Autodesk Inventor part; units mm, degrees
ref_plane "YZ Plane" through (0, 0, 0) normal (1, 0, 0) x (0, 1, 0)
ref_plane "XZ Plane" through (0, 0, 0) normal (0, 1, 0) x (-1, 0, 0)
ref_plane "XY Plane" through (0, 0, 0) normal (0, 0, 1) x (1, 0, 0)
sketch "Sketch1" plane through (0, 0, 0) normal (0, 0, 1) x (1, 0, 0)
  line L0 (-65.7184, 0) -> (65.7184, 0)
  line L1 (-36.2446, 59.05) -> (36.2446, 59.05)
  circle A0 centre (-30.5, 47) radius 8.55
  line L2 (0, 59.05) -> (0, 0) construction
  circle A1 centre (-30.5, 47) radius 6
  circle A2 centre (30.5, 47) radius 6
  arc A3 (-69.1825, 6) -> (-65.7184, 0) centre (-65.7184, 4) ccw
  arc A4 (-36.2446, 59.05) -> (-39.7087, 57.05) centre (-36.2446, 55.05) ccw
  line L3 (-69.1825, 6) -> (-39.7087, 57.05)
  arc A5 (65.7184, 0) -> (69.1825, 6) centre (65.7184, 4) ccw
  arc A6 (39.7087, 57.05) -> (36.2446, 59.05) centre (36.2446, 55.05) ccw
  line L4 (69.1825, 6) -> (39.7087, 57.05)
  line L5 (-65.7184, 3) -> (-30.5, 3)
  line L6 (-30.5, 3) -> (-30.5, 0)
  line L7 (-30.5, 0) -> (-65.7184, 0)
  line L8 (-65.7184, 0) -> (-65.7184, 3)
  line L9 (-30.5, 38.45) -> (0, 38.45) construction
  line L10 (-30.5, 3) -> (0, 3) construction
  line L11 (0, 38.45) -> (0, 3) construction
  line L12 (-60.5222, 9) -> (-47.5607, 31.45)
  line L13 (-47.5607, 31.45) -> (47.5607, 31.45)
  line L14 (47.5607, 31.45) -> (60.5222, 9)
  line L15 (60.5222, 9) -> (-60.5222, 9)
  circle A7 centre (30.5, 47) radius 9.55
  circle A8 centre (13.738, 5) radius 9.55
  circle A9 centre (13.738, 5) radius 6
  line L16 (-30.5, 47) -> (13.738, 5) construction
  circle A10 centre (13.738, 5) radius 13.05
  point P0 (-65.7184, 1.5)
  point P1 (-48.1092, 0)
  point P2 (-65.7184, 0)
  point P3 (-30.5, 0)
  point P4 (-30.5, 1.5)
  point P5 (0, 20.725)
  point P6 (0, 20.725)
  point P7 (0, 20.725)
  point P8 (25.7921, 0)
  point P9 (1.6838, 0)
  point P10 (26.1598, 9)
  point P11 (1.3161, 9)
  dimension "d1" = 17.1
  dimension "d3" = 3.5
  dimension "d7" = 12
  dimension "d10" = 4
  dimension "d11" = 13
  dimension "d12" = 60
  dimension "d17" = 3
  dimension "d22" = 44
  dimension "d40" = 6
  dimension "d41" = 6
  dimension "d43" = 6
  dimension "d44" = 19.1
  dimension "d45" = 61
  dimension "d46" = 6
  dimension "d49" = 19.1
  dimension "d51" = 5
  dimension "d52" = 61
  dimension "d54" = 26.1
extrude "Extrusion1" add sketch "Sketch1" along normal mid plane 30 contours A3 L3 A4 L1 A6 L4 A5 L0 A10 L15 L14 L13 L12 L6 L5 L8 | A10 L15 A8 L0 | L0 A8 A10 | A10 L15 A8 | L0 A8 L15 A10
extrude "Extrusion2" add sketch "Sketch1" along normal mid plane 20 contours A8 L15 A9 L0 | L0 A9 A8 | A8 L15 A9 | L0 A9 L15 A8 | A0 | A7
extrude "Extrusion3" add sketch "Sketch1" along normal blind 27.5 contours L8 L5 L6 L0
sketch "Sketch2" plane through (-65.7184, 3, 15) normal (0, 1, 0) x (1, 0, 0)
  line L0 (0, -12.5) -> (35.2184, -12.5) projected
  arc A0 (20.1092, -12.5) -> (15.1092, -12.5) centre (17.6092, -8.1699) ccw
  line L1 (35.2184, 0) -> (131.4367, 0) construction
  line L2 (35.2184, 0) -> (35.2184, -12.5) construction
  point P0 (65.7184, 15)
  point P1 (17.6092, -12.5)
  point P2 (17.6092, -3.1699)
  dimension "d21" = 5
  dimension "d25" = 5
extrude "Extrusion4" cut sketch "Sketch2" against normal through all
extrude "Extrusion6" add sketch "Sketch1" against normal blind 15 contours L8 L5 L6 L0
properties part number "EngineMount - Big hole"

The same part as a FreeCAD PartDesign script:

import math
import FreeCAD as App
import Part
import Sketcher

V = App.Vector
Q = App.Units.Quantity


def add_polygon(sketch, points):
    """Adds a closed chain of lines whose ends are joined by coincident constraints."""
    first, n = sketch.GeometryCount, len(points)
    for a, b in zip(points, points[1:] + points[:1]):
        sketch.addGeometry(Part.LineSegment(App.Vector(*a, 0), App.Vector(*b, 0)), False)
    for i in range(n):
        sketch.addConstraint(Sketcher.Constraint("Coincident", first + i, 2, first + (i + 1) % n, 1))

doc = App.newDocument("Part")
body = doc.addObject("PartDesign::Body", "Body")

sketch1 = body.newObject("Sketcher::SketchObject", "Sketch")
sketch1.AttachmentSupport = (doc.getObject("XY_Plane"), [""])
sketch1.MapMode = "FlatFace"
sketch1.addGeometry([
    Part.ArcOfCircle(Part.Circle(V(-65.7, 4, 0), V(0, 0, 1), 4), math.radians(150), math.radians(270)),
    Part.LineSegment(V(-65.7, 0, 0), V(-65.7, 3, 0)),
    Part.LineSegment(V(-65.7, 3, 0), V(-30.5, 3, 0)),
    Part.LineSegment(V(-30.5, 3, 0), V(-30.5, 0, 0)),
    Part.LineSegment(V(-30.5, 0, 0), V(1.7, 0, 0)),
    Part.ArcOfCircle(Part.Circle(V(13.7, 5, 0), V(0, 0, 1), 13.1), math.radians(-157), math.radians(-23)),
    Part.LineSegment(V(25.8, 0, 0), V(65.7, 0, 0)),
    Part.ArcOfCircle(Part.Circle(V(65.7, 4, 0), V(0, 0, 1), 4), math.radians(-90), math.radians(30)),
    Part.LineSegment(V(69.2, 6, 0), V(39.7, 57, 0)),
    Part.ArcOfCircle(Part.Circle(V(36.2, 55, 0), V(0, 0, 1), 4), math.radians(30), math.radians(90)),
    Part.LineSegment(V(36.2, 59, 0), V(-36.2, 59, 0)),
    Part.ArcOfCircle(Part.Circle(V(-36.2, 55, 0), V(0, 0, 1), 4), math.radians(90), math.radians(150)),
    Part.LineSegment(V(-39.7, 57, 0), V(-69.2, 6, 0)),
    Part.LineSegment(V(60.5, 9, 0), V(26.2, 9, 0)),
    Part.ArcOfCircle(Part.Circle(V(13.7, 5, 0), V(0, 0, 1), 13.1), math.radians(18), math.radians(162)),
    Part.LineSegment(V(1.3, 9, 0), V(-60.5, 9, 0)),
    Part.LineSegment(V(-60.5, 9, 0), V(-47.6, 31.4, 0)),
    Part.LineSegment(V(-47.6, 31.4, 0), V(47.6, 31.4, 0)),
    Part.LineSegment(V(47.6, 31.4, 0), V(60.5, 9, 0)),
    Part.Circle(V(-30.5, 47, 0), V(0, 0, 1), 8.6),
    Part.Circle(V(30.5, 47, 0), V(0, 0, 1), 9.6),
    Part.Circle(V(13.7, 5, 0), V(0, 0, 1), 9.6),
], False)
sketch1.addConstraint([
    Sketcher.Constraint("Coincident", 0, 2, 1, 1),
    Sketcher.Constraint("Coincident", 1, 2, 2, 1),
    Sketcher.Constraint("Coincident", 2, 2, 3, 1),
    Sketcher.Constraint("Coincident", 3, 2, 4, 1),
    Sketcher.Constraint("Coincident", 4, 2, 5, 1),
    Sketcher.Constraint("Coincident", 5, 2, 6, 1),
    Sketcher.Constraint("Tangent", 6, 2, 7, 1),
    Sketcher.Constraint("Tangent", 7, 2, 8, 1),
    Sketcher.Constraint("Tangent", 8, 2, 9, 1),
    Sketcher.Constraint("Tangent", 9, 2, 10, 1),
    Sketcher.Constraint("Tangent", 10, 2, 11, 1),
    Sketcher.Constraint("Tangent", 11, 2, 12, 1),
    Sketcher.Constraint("Tangent", 12, 2, 0, 1),
    Sketcher.Constraint("Coincident", 13, 2, 14, 1),
    Sketcher.Constraint("Coincident", 14, 2, 15, 1),
    Sketcher.Constraint("Coincident", 15, 2, 16, 1),
    Sketcher.Constraint("Coincident", 16, 2, 17, 1),
    Sketcher.Constraint("Coincident", 17, 2, 18, 1),
    Sketcher.Constraint("Coincident", 18, 2, 13, 1),
    Sketcher.Constraint("Vertical", 1),
    Sketcher.Constraint("Horizontal", 2),
    Sketcher.Constraint("Vertical", 3),
    Sketcher.Constraint("Horizontal", 4),
    Sketcher.Constraint("Horizontal", 6),
    Sketcher.Constraint("Horizontal", 10),
    Sketcher.Constraint("Horizontal", 13),
    Sketcher.Constraint("Horizontal", 15),
    Sketcher.Constraint("Horizontal", 17),
    Sketcher.Constraint("Coincident", 14, 3, 5, 3),
    Sketcher.Constraint("Coincident", 21, 3, 5, 3),
    Sketcher.Constraint("Equal", 0, 7),
    Sketcher.Constraint("Equal", 7, 9),
    Sketcher.Constraint("Equal", 9, 11),
    Sketcher.Constraint("Equal", 5, 14),
    Sketcher.Constraint("Equal", 20, 21),
    Sketcher.Constraint("Symmetric", 0, 2, 6, 2, -1, 1),
    Sketcher.Constraint("Symmetric", 0, 3, 7, 3, -2),
    Sketcher.Constraint("Symmetric", 19, 3, 20, 3, -2),
    Sketcher.Constraint("Symmetric", 15, 2, 18, 2, -2),
    Sketcher.Constraint("PointOnObject", 3, 2, -1),
    Sketcher.Constraint("Parallel", 12, 16),
    Sketcher.Constraint("Parallel", 8, 18),
    Sketcher.Constraint("Horizontal", 8, 2, 11, 2),
    Sketcher.Constraint("Vertical", 19, 3, 2, 2),
    Sketcher.Constraint("Radius", 0, Q("4 mm")),
    Sketcher.Constraint("Diameter", 19, Q("17.1 mm")),
    Sketcher.Constraint("Diameter", 20, Q("19.1 mm")),
    Sketcher.Constraint("DistanceY", 1, 1, 1, 2, Q("3 mm")),
    Sketcher.Constraint("Angle", 16, Q("60 deg")),
    Sketcher.Constraint("Radius", 5, Q("13.05 mm")),
    Sketcher.Constraint("DistanceY", -1, 1, 5, 3, Q("5 mm")),
    Sketcher.Constraint("DistanceX", 19, 3, 20, 3, Q("61 mm")),
    Sketcher.Constraint("DistanceY", 1, 2, 19, 3, Q("44 mm")),
    Sketcher.Constraint("DistanceY", 5, 3, 13, 2, Q("4 mm")),
    Sketcher.Constraint("DistanceY", 16, 2, 11, 3, Q("23.6 mm")),
    Sketcher.Constraint("DistanceY", -1, 1, 9, 3, Q("55.05 mm")),
    Sketcher.Constraint("DistanceX", 2, 1, 2, 2, Q("35.2184 mm")),
    Sketcher.Constraint("DistanceX", 4, 1, 4, 2, Q("32.1839 mm")),
    Sketcher.Constraint("DistanceX", 13, 2, 13, 1, Q("34.3623 mm")),
])
pad1 = body.newObject("PartDesign::Pad", "Pad")
pad1.Profile = sketch1
pad1.Length = 30
pad1.Midplane = True

sketch2 = body.newObject("Sketcher::SketchObject", "Sketch001")
sketch2.AttachmentSupport = (doc.getObject("XY_Plane"), [""])
sketch2.MapMode = "FlatFace"
sketch2.addGeometry([
    Part.Circle(V(14, 5, 0), V(0, 0, 1), 10),
    Part.Circle(V(14, 5, 0), V(0, 0, 1), 6),
    Part.Circle(V(-30, 47, 0), V(0, 0, 1), 9),
    Part.Circle(V(-30, 47, 0), V(0, 0, 1), 6),
    Part.Circle(V(30, 47, 0), V(0, 0, 1), 10),
    Part.Circle(V(30, 47, 0), V(0, 0, 1), 6),
], False)
sketch2.addConstraint([
    Sketcher.Constraint("Coincident", 1, 3, 0, 3),
    Sketcher.Constraint("Coincident", 3, 3, 2, 3),
    Sketcher.Constraint("Coincident", 5, 3, 4, 3),
    Sketcher.Constraint("Equal", 1, 3),
    Sketcher.Constraint("Equal", 0, 4),
    Sketcher.Constraint("Equal", 3, 5),
    Sketcher.Constraint("Symmetric", 2, 3, 4, 3, -2),
    Sketcher.Constraint("Diameter", 1, Q("12 mm")),
    Sketcher.Constraint("Diameter", 0, Q("19.1 mm")),
    Sketcher.Constraint("Diameter", 2, Q("17.1 mm")),
    Sketcher.Constraint("DistanceY", -1, 1, 0, 3, Q("5 mm")),
    Sketcher.Constraint("DistanceX", 2, 3, 4, 3, Q("61 mm")),
    Sketcher.Constraint("DistanceY", -1, 1, 2, 3, Q("47 mm")),
    Sketcher.Constraint("DistanceX", -1, 1, 0, 3, Q("13.738 mm")),
])
pad2 = body.newObject("PartDesign::Pad", "Pad001")
pad2.Profile = sketch2
pad2.Length = 20
pad2.Midplane = True

sketch3 = body.newObject("Sketcher::SketchObject", "Sketch002")
sketch3.AttachmentSupport = (doc.getObject("XY_Plane"), [""])
sketch3.MapMode = "FlatFace"
add_polygon(sketch3, [(-65.7, 3), (-65.7, 0), (-30.5, 0), (-30.5, 3)])
sketch3.addConstraint([
    Sketcher.Constraint("Vertical", 0),
    Sketcher.Constraint("Horizontal", 1),
    Sketcher.Constraint("Vertical", 2),
    Sketcher.Constraint("Horizontal", 3),
    Sketcher.Constraint("PointOnObject", 0, 2, -1),
    Sketcher.Constraint("DistanceY", 0, 2, 0, 1, Q("3 mm")),
    Sketcher.Constraint("DistanceX", 1, 2, -1, 1, Q("30.5 mm")),
    Sketcher.Constraint("DistanceX", 1, 1, 1, 2, Q("35.2184 mm")),
])
pad3 = body.newObject("PartDesign::Pad", "Pad002")
pad3.Profile = sketch3
pad3.Length = 27.5

sketch4 = body.newObject("Sketcher::SketchObject", "Sketch003")
sketch4.AttachmentSupport = (doc.getObject("XZ_Plane"), [""])
sketch4.MapMode = "FlatFace"
sketch4.AttachmentOffset = App.Placement(V(0, 0, -3), App.Rotation())
sketch4.addGeometry([
    Part.ArcOfCircle(Part.Circle(V(-48.1, 23.2, 0), V(0, 0, 1), 5), math.radians(120), math.radians(420)),
    Part.LineSegment(V(-50.6, 27.5, 0), V(-45.6, 27.5, 0)),
], False)
sketch4.addConstraint([
    Sketcher.Constraint("Coincident", 0, 1, 1, 1),
    Sketcher.Constraint("Coincident", 1, 2, 0, 2),
    Sketcher.Constraint("Horizontal", 1),
    Sketcher.Constraint("Radius", 0, Q("5 mm")),
    Sketcher.Constraint("DistanceX", 1, 1, 1, 2, Q("5 mm")),
    Sketcher.Constraint("DistanceY", -1, 1, 0, 1, Q("27.5 mm")),
    Sketcher.Constraint("DistanceX", 0, 3, -1, 1, Q("48.1092 mm")),
])
pocket1 = body.newObject("PartDesign::Pocket", "Pocket")
pocket1.Profile = sketch4
pocket1.Type = "ThroughAll"
pocket1.Reversed = True

sketch5 = body.newObject("Sketcher::SketchObject", "Sketch004")
sketch5.AttachmentSupport = (doc.getObject("XY_Plane"), [""])
sketch5.MapMode = "FlatFace"
add_polygon(sketch5, [(-65.7, 3), (-65.7, 0), (-30.5, 0), (-30.5, 3)])
sketch5.addConstraint([
    Sketcher.Constraint("Vertical", 0),
    Sketcher.Constraint("Horizontal", 1),
    Sketcher.Constraint("Vertical", 2),
    Sketcher.Constraint("Horizontal", 3),
    Sketcher.Constraint("PointOnObject", 0, 2, -1),
    Sketcher.Constraint("DistanceY", 0, 2, 0, 1, Q("3 mm")),
    Sketcher.Constraint("DistanceX", 1, 2, -1, 1, Q("30.5 mm")),
    Sketcher.Constraint("DistanceX", 1, 1, 1, 2, Q("35.2184 mm")),
])
pad4 = body.newObject("PartDesign::Pad", "Pad003")
pad4.Profile = sketch5
pad4.Length = 15
pad4.Reversed = True

doc.recompute()
